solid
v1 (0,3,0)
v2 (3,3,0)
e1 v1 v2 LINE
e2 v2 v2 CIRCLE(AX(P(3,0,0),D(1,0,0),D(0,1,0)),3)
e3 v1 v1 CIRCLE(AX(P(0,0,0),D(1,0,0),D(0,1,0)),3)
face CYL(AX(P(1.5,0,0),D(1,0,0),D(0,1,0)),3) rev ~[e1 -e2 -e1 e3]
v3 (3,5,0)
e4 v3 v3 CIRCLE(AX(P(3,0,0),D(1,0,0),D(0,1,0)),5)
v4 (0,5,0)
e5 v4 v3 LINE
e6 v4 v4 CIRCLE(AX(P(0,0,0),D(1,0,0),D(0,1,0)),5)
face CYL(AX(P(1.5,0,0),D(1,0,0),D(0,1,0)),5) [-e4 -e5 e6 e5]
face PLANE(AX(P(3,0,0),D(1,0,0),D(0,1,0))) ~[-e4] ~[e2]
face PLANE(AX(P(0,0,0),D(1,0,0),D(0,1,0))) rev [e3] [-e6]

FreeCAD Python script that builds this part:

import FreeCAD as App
import Part
import Sketcher

doc = App.newDocument("Part")
body = doc.addObject("PartDesign::Body", "Body")

# Sketch on XY plane
sketch1 = body.newObject("Sketcher::SketchObject", "Sketch")
sketch1.AttachmentSupport = (doc.getObject("XY_Plane"), [""])
sketch1.MapMode = "FlatFace"
sketch1.addGeometry([
    Part.LineSegment(App.Vector(0, 5, 0), App.Vector(0, 3, 0)),
    Part.LineSegment(App.Vector(0, 3, 0), App.Vector(3, 3, 0)),
    Part.LineSegment(App.Vector(3, 3, 0), App.Vector(3, 5, 0)),
    Part.LineSegment(App.Vector(3, 5, 0), App.Vector(0, 5, 0)),
], False)
sketch1.addConstraint([
    Sketcher.Constraint("Coincident", 0, 2, 1, 1),
    Sketcher.Constraint("Coincident", 1, 2, 2, 1),
    Sketcher.Constraint("Coincident", 2, 2, 3, 1),
    Sketcher.Constraint("Coincident", 3, 2, 0, 1),
    Sketcher.Constraint("Vertical", 0),
    Sketcher.Constraint("Horizontal", 1),
    Sketcher.Constraint("Vertical", 2),
    Sketcher.Constraint("Horizontal", 3),
    Sketcher.Constraint("PointOnObject", 0, 2, -2),
    Sketcher.Constraint("DistanceX", 1, 1, 1, 2, 3.0),
    Sketcher.Constraint("DistanceY", 0, 2, 0, 1, 2.0),
    Sketcher.Constraint("DistanceY", -1, 1, 0, 2, 3.0),
])
revolution = body.newObject("PartDesign::Revolution", "Revolution")
revolution.Profile = sketch1
revolution.ReferenceAxis = (sketch1, ["H_Axis"])
revolution.Angle = 360

doc.recompute()
